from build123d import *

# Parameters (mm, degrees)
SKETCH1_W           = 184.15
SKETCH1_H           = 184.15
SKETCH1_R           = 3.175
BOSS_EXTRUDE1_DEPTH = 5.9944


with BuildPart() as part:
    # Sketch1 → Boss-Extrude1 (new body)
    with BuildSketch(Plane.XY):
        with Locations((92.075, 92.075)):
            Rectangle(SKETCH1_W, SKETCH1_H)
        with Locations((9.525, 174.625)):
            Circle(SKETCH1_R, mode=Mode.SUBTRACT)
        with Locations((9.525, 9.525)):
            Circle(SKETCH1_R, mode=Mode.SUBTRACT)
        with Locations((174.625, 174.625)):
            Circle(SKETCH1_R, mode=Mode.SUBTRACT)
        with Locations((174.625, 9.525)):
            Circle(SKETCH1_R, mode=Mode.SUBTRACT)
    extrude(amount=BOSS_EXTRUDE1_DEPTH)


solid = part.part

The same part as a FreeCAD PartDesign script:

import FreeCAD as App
import Part
import Sketcher
Q = App.Units.Quantity


def add_polygon(sketch, points):
    """Adds a closed chain of lines whose ends are joined by coincident constraints."""
    first, n = sketch.GeometryCount, len(points)
    for a, b in zip(points, points[1:] + points[:1]):
        sketch.addGeometry(Part.LineSegment(App.Vector(*a, 0), App.Vector(*b, 0)), False)
    for i in range(n):
        sketch.addConstraint(Sketcher.Constraint("Coincident", first + i, 2, first + (i + 1) % n, 1))

doc = App.newDocument("Part")
body = doc.addObject("PartDesign::Body", "Body")

# Sketch on XY plane
sketch1 = doc.addObject("Sketcher::SketchObject", "Sketch")
body.addObject(sketch1)
sketch1.AttachmentSupport = (doc.XY_Plane, [""])
sketch1.MapMode = "FlatFace"
add_polygon(sketch1, [(0, 184.2), (0, 0), (184.2, 0), (184.2, 184.2)])  # lines 0-3
sketch1.addGeometry(Part.Circle(App.Vector(9.5, 9.5, 0), App.Vector(0, 0, 1), 3.2), False)  # 4
sketch1.addGeometry(Part.Circle(App.Vector(174.6, 9.5, 0), App.Vector(0, 0, 1), 3.2), False)  # 5
sketch1.addGeometry(Part.Circle(App.Vector(9.5, 174.6, 0), App.Vector(0, 0, 1), 3.2), False)  # 6
sketch1.addGeometry(Part.Circle(App.Vector(174.6, 174.6, 0), App.Vector(0, 0, 1), 3.2), False)  # 7
sketch1.addConstraint([
    Sketcher.Constraint("Vertical", 0),
    Sketcher.Constraint("Horizontal", 1),
    Sketcher.Constraint("Vertical", 2),
    Sketcher.Constraint("Horizontal", 3),
    Sketcher.Constraint("Coincident", 0, 2, -1, 1),
    Sketcher.Constraint("Equal", 4, 5),
    Sketcher.Constraint("Equal", 5, 6),
    Sketcher.Constraint("Equal", 6, 7),
    Sketcher.Constraint("Horizontal", 4, 3, 5, 3),
    Sketcher.Constraint("Horizontal", 6, 3, 7, 3),
    Sketcher.Constraint("Vertical", 4, 3, 6, 3),
    Sketcher.Constraint("Vertical", 5, 3, 7, 3),
    Sketcher.Constraint("Equal", 3, 0),
    Sketcher.Constraint("Diameter", 4, Q("0.25 in")),
    Sketcher.Constraint("DistanceX", 1, 1, 1, 2, Q("7.25 in")),
    Sketcher.Constraint("DistanceX", 4, 3, 5, 3, Q("6.5 in")),
    Sketcher.Constraint("DistanceY", 4, 3, 6, 3, Q("6.5 in")),
    Sketcher.Constraint("DistanceX", -1, 1, 4, 3, Q("0.375 in")),
    Sketcher.Constraint("DistanceY", -1, 1, 4, 3, Q("0.375 in")),
])
pad1 = doc.addObject("PartDesign::Pad", "Pad")
body.addObject(pad1)
pad1.Profile = sketch1
pad1.Length = Q("0.236 in")

doc.recompute()
